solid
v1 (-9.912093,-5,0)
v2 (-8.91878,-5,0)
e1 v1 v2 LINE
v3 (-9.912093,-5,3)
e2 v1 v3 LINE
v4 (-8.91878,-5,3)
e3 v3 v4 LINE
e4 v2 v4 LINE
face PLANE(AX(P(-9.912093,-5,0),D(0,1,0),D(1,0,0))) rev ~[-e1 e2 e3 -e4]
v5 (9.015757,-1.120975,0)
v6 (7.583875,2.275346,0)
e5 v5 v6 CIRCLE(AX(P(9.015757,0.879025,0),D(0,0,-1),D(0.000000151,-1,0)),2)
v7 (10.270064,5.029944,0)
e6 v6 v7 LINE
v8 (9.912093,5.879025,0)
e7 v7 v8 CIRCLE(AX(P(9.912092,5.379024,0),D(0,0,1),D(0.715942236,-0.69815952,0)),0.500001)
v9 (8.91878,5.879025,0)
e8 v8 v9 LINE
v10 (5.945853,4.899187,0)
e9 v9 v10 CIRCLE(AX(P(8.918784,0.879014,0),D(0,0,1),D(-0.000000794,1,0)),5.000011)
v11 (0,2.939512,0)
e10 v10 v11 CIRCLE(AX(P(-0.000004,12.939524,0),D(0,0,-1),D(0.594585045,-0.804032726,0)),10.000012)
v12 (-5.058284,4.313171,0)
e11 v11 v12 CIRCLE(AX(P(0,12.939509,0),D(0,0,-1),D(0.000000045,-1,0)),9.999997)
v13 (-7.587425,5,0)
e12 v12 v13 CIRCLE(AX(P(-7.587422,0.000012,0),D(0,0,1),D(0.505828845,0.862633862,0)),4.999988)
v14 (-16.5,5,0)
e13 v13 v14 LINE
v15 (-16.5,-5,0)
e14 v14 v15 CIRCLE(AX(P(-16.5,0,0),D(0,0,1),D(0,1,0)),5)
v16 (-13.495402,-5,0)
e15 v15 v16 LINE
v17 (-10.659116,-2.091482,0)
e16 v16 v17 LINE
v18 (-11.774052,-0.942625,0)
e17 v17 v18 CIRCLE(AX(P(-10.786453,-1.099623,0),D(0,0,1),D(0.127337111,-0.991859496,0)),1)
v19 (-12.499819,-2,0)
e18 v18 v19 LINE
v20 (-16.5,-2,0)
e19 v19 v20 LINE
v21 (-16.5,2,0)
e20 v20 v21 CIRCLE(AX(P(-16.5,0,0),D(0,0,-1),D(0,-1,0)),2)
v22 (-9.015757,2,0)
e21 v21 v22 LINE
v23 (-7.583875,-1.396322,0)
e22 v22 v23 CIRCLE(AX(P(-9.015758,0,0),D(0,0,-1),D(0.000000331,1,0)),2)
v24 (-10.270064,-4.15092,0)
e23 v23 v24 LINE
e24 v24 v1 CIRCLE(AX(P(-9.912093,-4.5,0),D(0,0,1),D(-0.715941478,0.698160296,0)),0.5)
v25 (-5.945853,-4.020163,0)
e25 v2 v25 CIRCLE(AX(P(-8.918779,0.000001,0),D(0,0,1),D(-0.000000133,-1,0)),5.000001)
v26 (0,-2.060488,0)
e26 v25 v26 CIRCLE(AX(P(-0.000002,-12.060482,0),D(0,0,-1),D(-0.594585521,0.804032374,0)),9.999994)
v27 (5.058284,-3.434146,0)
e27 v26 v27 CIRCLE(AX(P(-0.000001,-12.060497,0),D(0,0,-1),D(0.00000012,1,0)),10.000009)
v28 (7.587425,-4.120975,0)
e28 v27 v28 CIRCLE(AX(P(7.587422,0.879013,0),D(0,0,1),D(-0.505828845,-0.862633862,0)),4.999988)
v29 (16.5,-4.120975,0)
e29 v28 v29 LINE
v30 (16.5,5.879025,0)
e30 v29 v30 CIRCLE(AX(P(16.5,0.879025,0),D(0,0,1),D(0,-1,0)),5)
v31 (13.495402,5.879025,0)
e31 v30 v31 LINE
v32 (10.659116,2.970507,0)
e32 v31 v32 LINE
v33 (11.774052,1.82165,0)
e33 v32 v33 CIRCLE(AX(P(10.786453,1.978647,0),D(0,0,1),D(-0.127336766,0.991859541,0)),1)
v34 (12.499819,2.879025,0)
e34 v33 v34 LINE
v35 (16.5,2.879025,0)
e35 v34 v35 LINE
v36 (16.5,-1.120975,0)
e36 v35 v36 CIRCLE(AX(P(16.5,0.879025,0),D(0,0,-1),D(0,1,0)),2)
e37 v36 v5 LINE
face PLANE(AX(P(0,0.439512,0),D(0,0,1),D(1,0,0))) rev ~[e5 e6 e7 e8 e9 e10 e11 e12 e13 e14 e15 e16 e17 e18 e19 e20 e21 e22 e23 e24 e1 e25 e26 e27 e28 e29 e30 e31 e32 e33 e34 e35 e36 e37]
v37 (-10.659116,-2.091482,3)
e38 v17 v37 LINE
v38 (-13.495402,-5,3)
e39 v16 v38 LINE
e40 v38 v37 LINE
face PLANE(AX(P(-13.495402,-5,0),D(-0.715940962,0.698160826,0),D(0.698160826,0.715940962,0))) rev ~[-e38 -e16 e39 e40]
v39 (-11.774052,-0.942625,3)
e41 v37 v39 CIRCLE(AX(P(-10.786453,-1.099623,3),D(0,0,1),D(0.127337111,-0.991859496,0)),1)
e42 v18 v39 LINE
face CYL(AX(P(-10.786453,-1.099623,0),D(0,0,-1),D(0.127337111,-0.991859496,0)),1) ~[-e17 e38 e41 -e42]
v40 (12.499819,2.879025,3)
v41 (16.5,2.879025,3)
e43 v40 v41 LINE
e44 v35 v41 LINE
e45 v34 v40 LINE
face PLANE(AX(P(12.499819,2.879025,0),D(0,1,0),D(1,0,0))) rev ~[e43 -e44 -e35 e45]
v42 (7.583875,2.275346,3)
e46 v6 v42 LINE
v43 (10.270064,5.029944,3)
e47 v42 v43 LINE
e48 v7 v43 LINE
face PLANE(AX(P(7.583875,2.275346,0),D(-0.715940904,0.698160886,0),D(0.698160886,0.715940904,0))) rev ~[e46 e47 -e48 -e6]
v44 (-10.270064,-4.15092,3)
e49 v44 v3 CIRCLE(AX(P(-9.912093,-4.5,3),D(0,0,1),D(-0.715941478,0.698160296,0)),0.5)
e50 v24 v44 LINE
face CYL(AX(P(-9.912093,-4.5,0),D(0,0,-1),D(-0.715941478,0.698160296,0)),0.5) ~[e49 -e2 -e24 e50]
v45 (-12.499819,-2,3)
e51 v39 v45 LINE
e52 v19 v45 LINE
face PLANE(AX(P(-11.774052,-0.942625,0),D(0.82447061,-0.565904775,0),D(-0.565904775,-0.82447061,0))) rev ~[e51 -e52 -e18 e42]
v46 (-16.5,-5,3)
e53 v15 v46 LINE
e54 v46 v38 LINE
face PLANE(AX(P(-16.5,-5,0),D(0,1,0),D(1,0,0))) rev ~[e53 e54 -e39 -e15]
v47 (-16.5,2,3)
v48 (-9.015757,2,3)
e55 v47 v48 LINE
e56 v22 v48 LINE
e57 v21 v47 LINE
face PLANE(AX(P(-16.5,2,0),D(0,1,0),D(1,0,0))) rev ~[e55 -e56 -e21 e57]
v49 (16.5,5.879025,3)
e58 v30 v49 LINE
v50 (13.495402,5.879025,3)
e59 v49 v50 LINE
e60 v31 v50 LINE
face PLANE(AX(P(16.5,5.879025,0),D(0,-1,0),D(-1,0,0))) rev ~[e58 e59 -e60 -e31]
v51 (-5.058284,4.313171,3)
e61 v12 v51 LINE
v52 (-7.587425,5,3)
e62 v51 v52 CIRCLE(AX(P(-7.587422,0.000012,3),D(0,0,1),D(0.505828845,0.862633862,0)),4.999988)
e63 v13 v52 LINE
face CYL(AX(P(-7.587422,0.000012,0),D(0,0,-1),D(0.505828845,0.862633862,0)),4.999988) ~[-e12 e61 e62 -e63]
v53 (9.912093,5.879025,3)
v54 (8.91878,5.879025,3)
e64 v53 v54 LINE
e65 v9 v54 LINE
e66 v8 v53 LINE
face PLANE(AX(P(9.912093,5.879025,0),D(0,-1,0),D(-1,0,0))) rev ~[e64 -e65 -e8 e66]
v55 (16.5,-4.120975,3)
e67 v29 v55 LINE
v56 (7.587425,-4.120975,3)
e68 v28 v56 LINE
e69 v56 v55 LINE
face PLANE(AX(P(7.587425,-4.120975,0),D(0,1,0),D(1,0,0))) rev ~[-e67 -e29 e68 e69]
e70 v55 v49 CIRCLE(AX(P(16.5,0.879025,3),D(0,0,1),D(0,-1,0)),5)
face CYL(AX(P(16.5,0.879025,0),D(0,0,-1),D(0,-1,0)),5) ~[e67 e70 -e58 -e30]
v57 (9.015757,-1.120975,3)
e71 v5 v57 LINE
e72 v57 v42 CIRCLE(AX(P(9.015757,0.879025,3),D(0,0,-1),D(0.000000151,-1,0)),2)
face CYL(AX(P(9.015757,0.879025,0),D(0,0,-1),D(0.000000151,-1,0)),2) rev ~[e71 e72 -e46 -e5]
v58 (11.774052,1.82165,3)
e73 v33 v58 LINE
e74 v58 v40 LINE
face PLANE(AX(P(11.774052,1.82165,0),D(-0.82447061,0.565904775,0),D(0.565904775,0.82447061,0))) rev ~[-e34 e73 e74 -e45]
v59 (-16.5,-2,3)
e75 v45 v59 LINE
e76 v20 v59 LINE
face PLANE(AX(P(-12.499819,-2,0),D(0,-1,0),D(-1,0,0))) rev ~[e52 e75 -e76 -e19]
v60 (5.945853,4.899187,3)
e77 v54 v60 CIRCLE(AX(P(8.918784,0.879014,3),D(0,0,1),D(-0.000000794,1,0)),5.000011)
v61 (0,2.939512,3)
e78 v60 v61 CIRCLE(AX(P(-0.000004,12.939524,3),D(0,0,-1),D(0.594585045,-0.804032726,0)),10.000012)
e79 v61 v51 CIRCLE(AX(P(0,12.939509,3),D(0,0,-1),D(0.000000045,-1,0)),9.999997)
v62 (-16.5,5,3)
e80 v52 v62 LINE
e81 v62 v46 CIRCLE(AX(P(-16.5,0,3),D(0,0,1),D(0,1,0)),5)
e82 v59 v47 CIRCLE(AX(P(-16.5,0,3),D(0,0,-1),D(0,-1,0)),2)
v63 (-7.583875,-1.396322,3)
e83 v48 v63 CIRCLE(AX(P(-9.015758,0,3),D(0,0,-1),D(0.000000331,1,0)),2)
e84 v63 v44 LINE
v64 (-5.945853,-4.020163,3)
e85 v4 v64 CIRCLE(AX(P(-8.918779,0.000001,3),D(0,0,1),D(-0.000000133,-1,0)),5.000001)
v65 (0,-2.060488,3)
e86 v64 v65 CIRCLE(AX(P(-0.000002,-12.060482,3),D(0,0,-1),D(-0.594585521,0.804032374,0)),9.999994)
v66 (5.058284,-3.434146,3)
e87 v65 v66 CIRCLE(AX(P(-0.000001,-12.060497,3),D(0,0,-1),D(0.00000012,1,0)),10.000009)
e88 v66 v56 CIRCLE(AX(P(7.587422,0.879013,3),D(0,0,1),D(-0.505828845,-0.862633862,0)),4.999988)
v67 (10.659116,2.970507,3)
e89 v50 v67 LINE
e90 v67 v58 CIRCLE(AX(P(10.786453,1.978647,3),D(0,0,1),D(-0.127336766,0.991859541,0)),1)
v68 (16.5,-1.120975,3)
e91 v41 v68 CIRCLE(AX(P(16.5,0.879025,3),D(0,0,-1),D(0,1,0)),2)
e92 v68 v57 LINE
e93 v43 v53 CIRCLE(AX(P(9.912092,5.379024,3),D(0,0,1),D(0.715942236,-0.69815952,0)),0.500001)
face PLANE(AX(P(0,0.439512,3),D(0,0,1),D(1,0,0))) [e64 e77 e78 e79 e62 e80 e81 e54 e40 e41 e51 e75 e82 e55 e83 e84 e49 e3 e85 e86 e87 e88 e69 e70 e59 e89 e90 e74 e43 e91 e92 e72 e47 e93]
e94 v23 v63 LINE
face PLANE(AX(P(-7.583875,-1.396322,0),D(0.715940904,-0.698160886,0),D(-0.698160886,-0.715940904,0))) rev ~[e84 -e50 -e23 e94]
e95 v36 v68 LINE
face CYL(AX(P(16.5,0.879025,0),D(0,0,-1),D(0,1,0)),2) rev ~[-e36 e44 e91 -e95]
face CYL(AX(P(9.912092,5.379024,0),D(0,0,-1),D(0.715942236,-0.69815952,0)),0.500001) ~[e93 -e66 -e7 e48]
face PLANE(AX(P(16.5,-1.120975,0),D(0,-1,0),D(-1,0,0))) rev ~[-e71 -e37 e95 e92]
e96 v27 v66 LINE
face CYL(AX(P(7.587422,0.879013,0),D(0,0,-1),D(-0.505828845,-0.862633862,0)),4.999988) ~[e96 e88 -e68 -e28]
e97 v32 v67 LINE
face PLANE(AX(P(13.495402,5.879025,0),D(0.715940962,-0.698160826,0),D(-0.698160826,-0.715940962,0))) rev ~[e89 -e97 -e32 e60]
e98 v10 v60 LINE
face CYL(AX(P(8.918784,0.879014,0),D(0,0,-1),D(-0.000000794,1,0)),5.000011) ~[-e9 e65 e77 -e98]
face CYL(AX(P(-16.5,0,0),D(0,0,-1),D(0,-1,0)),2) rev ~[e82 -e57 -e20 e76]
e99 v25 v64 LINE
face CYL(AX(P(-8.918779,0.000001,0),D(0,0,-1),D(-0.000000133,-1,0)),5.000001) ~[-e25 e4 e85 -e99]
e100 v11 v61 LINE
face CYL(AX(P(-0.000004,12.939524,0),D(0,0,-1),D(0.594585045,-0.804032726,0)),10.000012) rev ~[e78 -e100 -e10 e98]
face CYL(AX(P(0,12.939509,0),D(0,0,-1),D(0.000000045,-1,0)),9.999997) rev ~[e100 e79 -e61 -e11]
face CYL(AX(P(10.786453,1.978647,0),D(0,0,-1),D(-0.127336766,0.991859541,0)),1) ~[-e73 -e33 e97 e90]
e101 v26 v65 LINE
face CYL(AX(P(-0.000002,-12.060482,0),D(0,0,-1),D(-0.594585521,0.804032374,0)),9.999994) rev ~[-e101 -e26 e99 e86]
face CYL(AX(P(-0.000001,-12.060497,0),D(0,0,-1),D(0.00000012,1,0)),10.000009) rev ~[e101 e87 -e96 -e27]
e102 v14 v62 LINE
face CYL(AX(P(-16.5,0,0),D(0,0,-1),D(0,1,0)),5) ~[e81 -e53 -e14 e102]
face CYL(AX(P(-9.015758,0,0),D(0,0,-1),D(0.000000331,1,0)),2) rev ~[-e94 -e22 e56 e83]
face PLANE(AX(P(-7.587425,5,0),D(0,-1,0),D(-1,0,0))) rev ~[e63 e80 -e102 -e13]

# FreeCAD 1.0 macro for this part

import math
import FreeCAD as App
import Part
import Sketcher

V = App.Vector

doc = App.newDocument("Part")
body = doc.addObject("PartDesign::Body", "Body")

# Sketch on XY plane
sketch1 = body.newObject("Sketcher::SketchObject", "Sketch")
sketch1.AttachmentSupport = (doc.getObject("XY_Plane"), [""])
sketch1.MapMode = "FlatFace"
sketch1.addGeometry(Part.LineSegment(V(-7.587425, 5, 0), V(-16.5, 5, 0)), False)
sketch1.addGeometry(Part.ArcOfCircle(Part.Circle(V(-16.5, 0, 0), V(0, 0, 1), 5), math.radians(90), math.radians(270)), False)
sketch1.addGeometry(Part.LineSegment(V(-16.5, -5, 0), V(-13.495402, -5, 0)), False)
sketch1.addGeometry(Part.LineSegment(V(-13.495402, -5, 0), V(-10.659116, -2.091482, 0)), False)
sketch1.addGeometry(Part.ArcOfCircle(Part.Circle(V(-10.786453, -1.099623, 0), V(0, 0, 1), 1), math.radians(-82.684259), math.radians(170.967331)), False)
sketch1.addGeometry(Part.LineSegment(V(-11.774052, -0.942625, 0), V(-12.499819, -2, 0)), False)
sketch1.addGeometry(Part.LineSegment(V(-12.499819, -2, 0), V(-16.5, -2, 0)), False)
sketch1.addGeometry(Part.ArcOfCircle(Part.Circle(V(-16.5, 0, 0), V(0, 0, 1), 2), math.radians(90), math.radians(270)), False)
sketch1.addGeometry(Part.LineSegment(V(-16.5, 2, 0), V(-9.015757, 2, 0)), False)
sketch1.addGeometry(Part.ArcOfCircle(Part.Circle(V(-9.015758, 0, 0), V(0, 0, 1), 2), math.radians(-44.279616), math.radians(89.999981)), False)
sketch1.addGeometry(Part.LineSegment(V(-7.583875, -1.396322, 0), V(-10.270064, -4.15092, 0)), False)
sketch1.addGeometry(Part.ArcOfCircle(Part.Circle(V(-9.912093, -4.5, 0), V(0, 0, 1), 0.5), math.radians(135.72041), math.radians(270.000037)), False)
sketch1.addGeometry(Part.LineSegment(V(-9.912093, -5, 0), V(-8.91878, -5, 0)), False)
sketch1.addGeometry(Part.ArcOfCircle(Part.Circle(V(-8.918779, 0.000001, 0), V(0, 0, 1), 5.000001), math.radians(-90.000008), math.radians(-53.516934)), False)
sketch1.addGeometry(Part.ArcOfCircle(Part.Circle(V(-0.000002, -12.060482, 0), V(0, 0, 1), 9.999994), math.radians(89.999991), math.radians(126.48309)), False)
sketch1.addGeometry(Part.ArcOfCircle(Part.Circle(V(-0.000001, -12.060497, 0), V(0, 0, 1), 10.000009), math.radians(59.613664), math.radians(89.999993)), False)
sketch1.addGeometry(Part.ArcOfCircle(Part.Circle(V(7.587422, 0.879013, 0), V(0, 0, 1), 4.999988), math.radians(-120.386388), math.radians(-89.999966)), False)
sketch1.addGeometry(Part.LineSegment(V(7.587425, -4.120975, 0), V(16.5, -4.120975, 0)), False)
sketch1.addGeometry(Part.ArcOfCircle(Part.Circle(V(16.5, 0.879025, 0), V(0, 0, 1), 5), math.radians(-90), math.radians(90)), False)
sketch1.addGeometry(Part.LineSegment(V(16.5, 5.879025, 0), V(13.495402, 5.879025, 0)), False)
sketch1.addGeometry(Part.LineSegment(V(13.495402, 5.879025, 0), V(10.659116, 2.970507, 0)), False)
sketch1.addGeometry(Part.ArcOfCircle(Part.Circle(V(10.786453, 1.978647, 0), V(0, 0, 1), 1), math.radians(97.315721), math.radians(350.967351)), False)
sketch1.addGeometry(Part.LineSegment(V(11.774052, 1.82165, 0), V(12.499819, 2.879025, 0)), False)
sketch1.addGeometry(Part.LineSegment(V(12.499819, 2.879025, 0), V(16.5, 2.879025, 0)), False)
sketch1.addGeometry(Part.ArcOfCircle(Part.Circle(V(16.5, 0.879025, 0), V(0, 0, 1), 2), math.radians(-90), math.radians(90)), False)
sketch1.addGeometry(Part.LineSegment(V(16.5, -1.120975, 0), V(9.015757, -1.120975, 0)), False)
sketch1.addGeometry(Part.ArcOfCircle(Part.Circle(V(9.015757, 0.879025, 0), V(0, 0, 1), 2), math.radians(135.720369), math.radians(270.000009)), False)
sketch1.addGeometry(Part.LineSegment(V(7.583875, 2.275346, 0), V(10.270064, 5.029944, 0)), False)
sketch1.addGeometry(Part.ArcOfCircle(Part.Circle(V(9.912092, 5.379024, 0), V(0, 0, 1), 0.500001), math.radians(-44.279528), math.radians(89.999927)), False)
sketch1.addGeometry(Part.LineSegment(V(9.912093, 5.879025, 0), V(8.91878, 5.879025, 0)), False)
sketch1.addGeometry(Part.ArcOfCircle(Part.Circle(V(8.918784, 0.879014, 0), V(0, 0, 1), 5.000011), math.radians(90.000045), math.radians(126.483047)), False)
sketch1.addGeometry(Part.ArcOfCircle(Part.Circle(V(-0.000004, 12.939524, 0), V(0, 0, 1), 10.000012), math.radians(-89.999975), math.radians(-53.516943)), False)
sketch1.addGeometry(Part.ArcOfCircle(Part.Circle(V(0, 12.939509, 0), V(0, 0, 1), 9.999997), math.radians(-120.386366), math.radians(-89.999997)), False)
sketch1.addGeometry(Part.ArcOfCircle(Part.Circle(V(-7.587422, 0.000012, 0), V(0, 0, 1), 4.999988), math.radians(59.613612), math.radians(90.000034)), False)
sketch1.addConstraint(Sketcher.Constraint("Coincident", 0, 2, 1, 1))
sketch1.addConstraint(Sketcher.Constraint("Coincident", 1, 2, 2, 1))
sketch1.addConstraint(Sketcher.Constraint("Coincident", 2, 2, 3, 1))
sketch1.addConstraint(Sketcher.Constraint("Coincident", 3, 2, 4, 1))
sketch1.addConstraint(Sketcher.Constraint("Coincident", 4, 2, 5, 1))
sketch1.addConstraint(Sketcher.Constraint("Coincident", 5, 2, 6, 1))
sketch1.addConstraint(Sketcher.Constraint("Coincident", 6, 2, 7, 2))
sketch1.addConstraint(Sketcher.Constraint("Coincident", 7, 1, 8, 1))
sketch1.addConstraint(Sketcher.Constraint("Coincident", 8, 2, 9, 2))
sketch1.addConstraint(Sketcher.Constraint("Coincident", 9, 1, 10, 1))
sketch1.addConstraint(Sketcher.Constraint("Coincident", 10, 2, 11, 1))
sketch1.addConstraint(Sketcher.Constraint("Coincident", 11, 2, 12, 1))
sketch1.addConstraint(Sketcher.Constraint("Coincident", 12, 2, 13, 1))
sketch1.addConstraint(Sketcher.Constraint("Coincident", 13, 2, 14, 2))
sketch1.addConstraint(Sketcher.Constraint("Coincident", 14, 1, 15, 2))
sketch1.addConstraint(Sketcher.Constraint("Coincident", 15, 1, 16, 1))
sketch1.addConstraint(Sketcher.Constraint("Coincident", 16, 2, 17, 1))
sketch1.addConstraint(Sketcher.Constraint("Coincident", 17, 2, 18, 1))
sketch1.addConstraint(Sketcher.Constraint("Coincident", 18, 2, 19, 1))
sketch1.addConstraint(Sketcher.Constraint("Coincident", 19, 2, 20, 1))
sketch1.addConstraint(Sketcher.Constraint("Coincident", 20, 2, 21, 1))
sketch1.addConstraint(Sketcher.Constraint("Coincident", 21, 2, 22, 1))
sketch1.addConstraint(Sketcher.Constraint("Coincident", 22, 2, 23, 1))
sketch1.addConstraint(Sketcher.Constraint("Coincident", 23, 2, 24, 2))
sketch1.addConstraint(Sketcher.Constraint("Coincident", 24, 1, 25, 1))
sketch1.addConstraint(Sketcher.Constraint("Coincident", 25, 2, 26, 2))
sketch1.addConstraint(Sketcher.Constraint("Coincident", 26, 1, 27, 1))
sketch1.addConstraint(Sketcher.Constraint("Coincident", 27, 2, 28, 1))
sketch1.addConstraint(Sketcher.Constraint("Coincident", 28, 2, 29, 1))
sketch1.addConstraint(Sketcher.Constraint("Coincident", 29, 2, 30, 1))
sketch1.addConstraint(Sketcher.Constraint("Coincident", 30, 2, 31, 2))
sketch1.addConstraint(Sketcher.Constraint("Coincident", 31, 1, 32, 2))
sketch1.addConstraint(Sketcher.Constraint("Coincident", 32, 1, 33, 1))
sketch1.addConstraint(Sketcher.Constraint("Coincident", 33, 2, 0, 1))
sketch1.addConstraint(Sketcher.Constraint("Horizontal", 0))
sketch1.addConstraint(Sketcher.Constraint("Horizontal", 2))
sketch1.addConstraint(Sketcher.Constraint("Horizontal", 6))
sketch1.addConstraint(Sketcher.Constraint("Horizontal", 8))
sketch1.addConstraint(Sketcher.Constraint("Horizontal", 12))
sketch1.addConstraint(Sketcher.Constraint("Horizontal", 17))
sketch1.addConstraint(Sketcher.Constraint("Horizontal", 19))
sketch1.addConstraint(Sketcher.Constraint("Horizontal", 23))
sketch1.addConstraint(Sketcher.Constraint("Horizontal", 25))
sketch1.addConstraint(Sketcher.Constraint("Horizontal", 29))
sketch1.addConstraint(Sketcher.Constraint("Coincident", 7, 3, 1, 3))
sketch1.addConstraint(Sketcher.Constraint("Coincident", 24, 3, 18, 3))
sketch1.addConstraint(Sketcher.Constraint("PointOnObject", 1, 3, -1))
sketch1.addConstraint(Sketcher.Constraint("PointOnObject", 9, 3, -1))
sketch1.addConstraint(Sketcher.Constraint("PointOnObject", 13, 3, -1))
sketch1.addConstraint(Sketcher.Constraint("PointOnObject", 14, 3, -2))
sketch1.addConstraint(Sketcher.Constraint("PointOnObject", 15, 3, -2))
sketch1.addConstraint(Sketcher.Constraint("PointOnObject", 32, 3, -2))
sketch1.addConstraint(Sketcher.Constraint("PointOnObject", 14, 1, -2))
sketch1.addConstraint(Sketcher.Constraint("PointOnObject", 31, 1, -2))
sketch1.addConstraint(Sketcher.Constraint("Radius", 1, 5.0))
sketch1.addConstraint(Sketcher.Constraint("Radius", 4, 1.0))
sketch1.addConstraint(Sketcher.Constraint("Radius", 7, 2.0))
sketch1.addConstraint(Sketcher.Constraint("Radius", 13, 5.000001))
sketch1.addConstraint(Sketcher.Constraint("Radius", 18, 5.0))
sketch1.addConstraint(Sketcher.Constraint("Radius", 21, 1.0))
sketch1.addConstraint(Sketcher.Constraint("Radius", 24, 2.0))
sketch1.addConstraint(Sketcher.Constraint("Radius", 26, 2.0))
sketch1.addConstraint(Sketcher.Constraint("Radius", 11, 0.5))
sketch1.addConstraint(Sketcher.Constraint("Radius", 28, 0.500001))
sketch1.addConstraint(Sketcher.Constraint("DistanceY", 22, 2, 28, 2, 3.0))
sketch1.addConstraint(Sketcher.Constraint("DistanceY", 14, 1, 31, 1, 5.0))
sketch1.addConstraint(Sketcher.Constraint("DistanceX", 1, 3, -1, 1, 16.5))
sketch1.addConstraint(Sketcher.Constraint("DistanceX", -1, 1, 18, 3, 16.5))
sketch1.addConstraint(Sketcher.Constraint("DistanceX", 0, 2, -1, 1, 16.5))
sketch1.addConstraint(Sketcher.Constraint("DistanceX", 1, 2, -1, 1, 16.5))
sketch1.addConstraint(Sketcher.Constraint("DistanceX", 6, 2, -1, 1, 16.5))
sketch1.addConstraint(Sketcher.Constraint("DistanceX", 7, 1, -1, 1, 16.5))
sketch1.addConstraint(Sketcher.Constraint("DistanceX", -1, 1, 17, 2, 16.5))
sketch1.addConstraint(Sketcher.Constraint("DistanceX", -1, 1, 18, 2, 16.5))
sketch1.addConstraint(Sketcher.Constraint("DistanceX", -1, 1, 23, 2, 16.5))
sketch1.addConstraint(Sketcher.Constraint("DistanceX", -1, 1, 24, 1, 16.5))
sketch1.addConstraint(Sketcher.Constraint("Radius", 15, 10.000009))
sketch1.addConstraint(Sketcher.Constraint("Radius", 30, 5.000011))
sketch1.addConstraint(Sketcher.Constraint("Radius", 31, 10.000012))
sketch1.addConstraint(Sketcher.Constraint("Radius", 14, 9.999994))
sketch1.addConstraint(Sketcher.Constraint("Radius", 16, 4.999988))
sketch1.addConstraint(Sketcher.Constraint("Radius", 32, 9.999997))
sketch1.addConstraint(Sketcher.Constraint("Radius", 33, 4.999988))
sketch1.addConstraint(Sketcher.Constraint("DistanceX", 6, 2, 6, 1, 4.000181))
sketch1.addConstraint(Sketcher.Constraint("DistanceX", 23, 1, 23, 2, 4.000181))
sketch1.addConstraint(Sketcher.Constraint("DistanceY", 15, 3, 13, 3, 12.060498))
sketch1.addConstraint(Sketcher.Constraint("DistanceX", 13, 3, 16, 3, 16.506201))
sketch1.addConstraint(Sketcher.Constraint("DistanceX", 4, 2, 4, 3, 0.987599))
sketch1.addConstraint(Sketcher.Constraint("DistanceY", 9, 1, 4, 3, 0.296699))
sketch1.addConstraint(Sketcher.Constraint("DistanceX", 15, 1, 30, 3, 3.8605))
sketch1.addConstraint(Sketcher.Constraint("DistanceX", 21, 3, 21, 2, 0.987599))
sketch1.addConstraint(Sketcher.Constraint("DistanceY", 21, 3, 26, 1, 0.296699))
sketch1.addConstraint(Sketcher.Constraint("Distance", 3, 4.062511))
sketch1.addConstraint(Sketcher.Constraint("Distance", 5, 1.28249))
sketch1.addConstraint(Sketcher.Constraint("Distance", 10, 3.847521))
sketch1.addConstraint(Sketcher.Constraint("Distance", 20, 4.062511))
sketch1.addConstraint(Sketcher.Constraint("Distance", 22, 1.28249))
sketch1.addConstraint(Sketcher.Constraint("Distance", 27, 3.847521))
sketch1.addConstraint(Sketcher.Constraint("DistanceX", 0, 2, 0, 1, 8.912575))
sketch1.addConstraint(Sketcher.Constraint("DistanceX", 2, 1, 2, 2, 3.004598))
sketch1.addConstraint(Sketcher.Constraint("DistanceX", 8, 1, 8, 2, 7.484243))
sketch1.addConstraint(Sketcher.Constraint("DistanceX", 12, 1, 12, 2, 0.993313))
sketch1.addConstraint(Sketcher.Constraint("DistanceX", 17, 1, 17, 2, 8.912575))
sketch1.addConstraint(Sketcher.Constraint("DistanceX", 19, 2, 19, 1, 3.004598))
sketch1.addConstraint(Sketcher.Constraint("DistanceX", 25, 2, 25, 1, 7.484243))
sketch1.addConstraint(Sketcher.Constraint("DistanceX", 29, 2, 29, 1, 0.993313))
sketch1.addConstraint(Sketcher.Constraint("DistanceX", 4, 2, -1, 1, 11.774052))
sketch1.addConstraint(Sketcher.Constraint("DistanceY", 10, 2, -1, 1, 4.15092))
sketch1.addConstraint(Sketcher.Constraint("DistanceX", 12, 2, -1, 1, 8.91878))
sketch1.addConstraint(Sketcher.Constraint("DistanceY", -1, 1, 21, 2, 1.82165))
sketch1.addConstraint(Sketcher.Constraint("DistanceX", -1, 1, 29, 2, 8.91878))
sketch1.addConstraint(Sketcher.Constraint("DistanceY", -1, 1, 32, 1, 4.313171))
sketch1.addConstraint(Sketcher.Constraint("DistanceX", 4, 3, 11, 3, 0.87436))
sketch1.addConstraint(Sketcher.Constraint("DistanceX", 14, 3, 26, 3, 9.015758))
sketch1.addConstraint(Sketcher.Constraint("DistanceX", 28, 3, 21, 3, 0.87436))
sketch1.addConstraint(Sketcher.Constraint("DistanceX", 16, 3, 30, 3, 1.331362))
sketch1.addConstraint(Sketcher.Constraint("DistanceX", 9, 1, 13, 2, 1.638022))
sketch1.addConstraint(Sketcher.Constraint("DistanceY", 26, 1, 30, 2, 2.623841))
pad1 = body.newObject("PartDesign::Pad", "Pad")
pad1.Profile = sketch1
pad1.Length = 3

doc.recompute()
